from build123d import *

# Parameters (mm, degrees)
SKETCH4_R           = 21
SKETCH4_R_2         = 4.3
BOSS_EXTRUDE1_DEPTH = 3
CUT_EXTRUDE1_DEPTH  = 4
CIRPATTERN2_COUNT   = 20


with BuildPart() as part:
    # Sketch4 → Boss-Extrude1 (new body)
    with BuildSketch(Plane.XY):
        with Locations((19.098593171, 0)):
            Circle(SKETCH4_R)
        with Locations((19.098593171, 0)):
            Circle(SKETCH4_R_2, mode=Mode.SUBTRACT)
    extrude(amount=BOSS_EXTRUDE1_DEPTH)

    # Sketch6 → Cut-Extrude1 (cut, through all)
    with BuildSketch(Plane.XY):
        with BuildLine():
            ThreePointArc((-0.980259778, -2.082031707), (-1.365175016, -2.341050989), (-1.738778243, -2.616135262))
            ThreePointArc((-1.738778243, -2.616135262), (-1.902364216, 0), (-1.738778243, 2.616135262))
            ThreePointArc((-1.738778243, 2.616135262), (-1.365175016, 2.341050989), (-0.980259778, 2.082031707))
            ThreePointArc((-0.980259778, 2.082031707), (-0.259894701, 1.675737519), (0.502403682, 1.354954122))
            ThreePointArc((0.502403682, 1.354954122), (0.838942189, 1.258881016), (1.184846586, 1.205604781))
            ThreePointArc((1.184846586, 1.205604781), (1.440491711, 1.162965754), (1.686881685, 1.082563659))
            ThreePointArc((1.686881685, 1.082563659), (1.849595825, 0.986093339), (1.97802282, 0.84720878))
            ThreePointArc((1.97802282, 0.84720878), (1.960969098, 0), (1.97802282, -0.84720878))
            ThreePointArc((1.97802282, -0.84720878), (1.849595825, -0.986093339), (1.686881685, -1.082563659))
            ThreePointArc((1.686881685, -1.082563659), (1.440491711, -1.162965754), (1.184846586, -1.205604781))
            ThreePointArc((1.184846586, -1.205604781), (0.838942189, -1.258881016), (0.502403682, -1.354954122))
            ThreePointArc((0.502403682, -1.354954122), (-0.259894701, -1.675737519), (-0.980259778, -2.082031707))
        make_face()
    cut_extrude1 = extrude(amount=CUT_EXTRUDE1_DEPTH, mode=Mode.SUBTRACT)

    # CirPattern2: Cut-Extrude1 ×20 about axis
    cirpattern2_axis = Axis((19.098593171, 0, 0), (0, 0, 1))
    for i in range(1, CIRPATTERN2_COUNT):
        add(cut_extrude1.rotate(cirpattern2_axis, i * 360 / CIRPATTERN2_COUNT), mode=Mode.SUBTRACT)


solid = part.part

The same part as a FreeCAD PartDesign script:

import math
import FreeCAD as App
import Part
import Sketcher

V = App.Vector
Q = App.Units.Quantity

doc = App.newDocument("Part")
body = doc.addObject("PartDesign::Body", "Body")

# Sketch on XY plane
sketch1 = body.newObject("Sketcher::SketchObject", "Sketch")
sketch1.AttachmentSupport = (doc.getObject("XY_Plane"), [""])
sketch1.MapMode = "FlatFace"
sketch1.addGeometry(Part.Circle(V(19.1, 0, 0), V(0, 0, 1), 21), False)
sketch1.addGeometry(Part.Circle(V(19.1, 0, 0), V(0, 0, 1), 4.3), False)
sketch1.addConstraint(Sketcher.Constraint("Coincident", 1, 3, 0, 3))
sketch1.addConstraint(Sketcher.Constraint("PointOnObject", 0, 3, -1))
sketch1.addConstraint(Sketcher.Constraint("Diameter", 0, Q("42 mm")))
sketch1.addConstraint(Sketcher.Constraint("Diameter", 1, Q("8.6 mm")))
sketch1.addConstraint(Sketcher.Constraint("DistanceX", -1, 1, 0, 3, Q("19.098593 mm")))
pad1 = body.newObject("PartDesign::Pad", "Pad")
pad1.Profile = sketch1
pad1.Length = 3

# Sketch on XY plane
sketch2 = body.newObject("Sketcher::SketchObject", "Sketch001")
sketch2.AttachmentSupport = (doc.getObject("XY_Plane"), [""])
sketch2.MapMode = "FlatFace"
sketch2.addGeometry(Part.ArcOfCircle(Part.Circle(V(4.94, -11.3, 0), V(0, 0, 1), 10.96), math.radians(122.72), math.radians(127.58)), False)
sketch2.addGeometry(Part.ArcOfCircle(Part.Circle(V(2.9, -8.12, 0), V(0, 0, 1), 7.18), math.radians(109.52), math.radians(122.72)), False)
sketch2.addGeometry(Part.ArcOfCircle(Part.Circle(V(1.44, -3.99, 0), V(0, 0, 1), 2.8), math.radians(95.17), math.radians(109.52)), False)
sketch2.addGeometry(Part.ArcOfCircle(Part.Circle(V(1.03, 0.52, 0), V(0, 0, 1), 1.73), math.radians(-84.83), math.radians(-67.63)), False)
sketch2.addGeometry(Part.ArcOfCircle(Part.Circle(V(1.44, -0.48, 0), V(0, 0, 1), 0.66), math.radians(-68), math.radians(-34)), False)
sketch2.addGeometry(Part.ArcOfCircle(Part.Circle(V(23.01, 0, 0), V(0, 0, 1), 21.05), math.radians(177.69), math.radians(182.31)), False)
sketch2.addGeometry(Part.ArcOfCircle(Part.Circle(V(1.44, 0.48, 0), V(0, 0, 1), 0.66), math.radians(34), math.radians(68)), False)
sketch2.addGeometry(Part.ArcOfCircle(Part.Circle(V(1.03, -0.52, 0), V(0, 0, 1), 1.73), math.radians(67.63), math.radians(84.83)), False)
sketch2.addGeometry(Part.ArcOfCircle(Part.Circle(V(1.44, 3.99, 0), V(0, 0, 1), 2.8), math.radians(-109.52), math.radians(-95.17)), False)
sketch2.addGeometry(Part.ArcOfCircle(Part.Circle(V(2.9, 8.12, 0), V(0, 0, 1), 7.18), math.radians(-122.72), math.radians(-109.52)), False)
sketch2.addGeometry(Part.ArcOfCircle(Part.Circle(V(4.94, 11.3, 0), V(0, 0, 1), 10.96), math.radians(-127.58), math.radians(-122.72)), False)
sketch2.addGeometry(Part.ArcOfCircle(Part.Circle(V(19.1, 0, 0), V(0, 0, 1), 21), math.radians(172.84), math.radians(187.16)), False)
sketch2.addConstraint(Sketcher.Constraint("Tangent", 0, 1, 1, 2))
sketch2.addConstraint(Sketcher.Constraint("Tangent", 1, 1, 2, 2))
sketch2.addConstraint(Sketcher.Constraint("Tangent", 2, 1, 3, 1))
sketch2.addConstraint(Sketcher.Constraint("Tangent", 3, 2, 4, 1))
sketch2.addConstraint(Sketcher.Constraint("Coincident", 4, 2, 5, 2))
sketch2.addConstraint(Sketcher.Constraint("Coincident", 5, 1, 6, 1))
sketch2.addConstraint(Sketcher.Constraint("Tangent", 6, 2, 7, 1))
sketch2.addConstraint(Sketcher.Constraint("Tangent", 7, 2, 8, 2))
sketch2.addConstraint(Sketcher.Constraint("Tangent", 8, 1, 9, 2))
sketch2.addConstraint(Sketcher.Constraint("Tangent", 9, 1, 10, 2))
sketch2.addConstraint(Sketcher.Constraint("Coincident", 10, 1, 11, 1))
sketch2.addConstraint(Sketcher.Constraint("Coincident", 11, 2, 0, 2))
sketch2.addConstraint(Sketcher.Constraint("Equal", 4, 6))
sketch2.addConstraint(Sketcher.Constraint("Equal", 3, 7))
sketch2.addConstraint(Sketcher.Constraint("Equal", 2, 8))
sketch2.addConstraint(Sketcher.Constraint("Equal", 1, 9))
sketch2.addConstraint(Sketcher.Constraint("Equal", 0, 10))
sketch2.addConstraint(Sketcher.Constraint("Symmetric", 4, 3, 6, 3, -1))
sketch2.addConstraint(Sketcher.Constraint("Symmetric", 2, 3, 8, 3, -1))
sketch2.addConstraint(Sketcher.Constraint("Symmetric", 0, 3, 10, 3, -1))
sketch2.addConstraint(Sketcher.Constraint("PointOnObject", 5, 3, -1))
sketch2.addConstraint(Sketcher.Constraint("PointOnObject", 11, 3, -1))
sketch2.addConstraint(Sketcher.Constraint("Radius", 1, Q("7.181928 mm")))
sketch2.addConstraint(Sketcher.Constraint("Radius", 3, Q("1.727658 mm")))
sketch2.addConstraint(Sketcher.Constraint("Radius", 4, Q("0.65608 mm")))
sketch2.addConstraint(Sketcher.Constraint("Radius", 0, Q("10.955328 mm")))
sketch2.addConstraint(Sketcher.Constraint("Radius", 2, Q("2.795914 mm")))
sketch2.addConstraint(Sketcher.Constraint("Radius", 5, Q("21.052693 mm")))
sketch2.addConstraint(Sketcher.Constraint("Radius", 11, Q("21.000957 mm")))
sketch2.addConstraint(Sketcher.Constraint("DistanceY", 0, 1, 7, 3, Q("1.567 mm")))
sketch2.addConstraint(Sketcher.Constraint("DistanceY", 1, 3, 2, 3, Q("4.133901 mm")))
sketch2.addConstraint(Sketcher.Constraint("DistanceX", 3, 3, 4, 3, Q("0.407901 mm")))
sketch2.addConstraint(Sketcher.Constraint("DistanceX", 0, 3, 5, 3, Q("18.071502 mm")))
sketch2.addConstraint(Sketcher.Constraint("DistanceX", 0, 1, 7, 3, Q("2.0095 mm")))
sketch2.addConstraint(Sketcher.Constraint("DistanceX", -1, 1, 0, 3, Q("4.94216 mm")))
sketch2.addConstraint(Sketcher.Constraint("DistanceX", -1, 1, 1, 3, Q("2.902271 mm")))
sketch2.addConstraint(Sketcher.Constraint("DistanceX", 10, 1, -1, 1, Q("1.738778 mm")))
pocket1 = body.newObject("PartDesign::Pocket", "Pocket")
pocket1.Profile = sketch2
pocket1.Type = "ThroughAll"
pocket1.Reversed = True
doc.recompute()

datumline = body.newObject("PartDesign::Line", "DatumLine")
datumline.Placement = App.Placement(V(19.098593, 0, 0), App.Rotation(V(0, 0, 1), V(0, 0, 1)))
polarpattern = body.newObject("PartDesign::PolarPattern", "PolarPattern")
polarpattern.Originals = [pocket1]
polarpattern.Axis = (datumline, [""])
polarpattern.Angle = 360
polarpattern.Occurrences = 20
body.Tip = polarpattern

doc.recompute()
